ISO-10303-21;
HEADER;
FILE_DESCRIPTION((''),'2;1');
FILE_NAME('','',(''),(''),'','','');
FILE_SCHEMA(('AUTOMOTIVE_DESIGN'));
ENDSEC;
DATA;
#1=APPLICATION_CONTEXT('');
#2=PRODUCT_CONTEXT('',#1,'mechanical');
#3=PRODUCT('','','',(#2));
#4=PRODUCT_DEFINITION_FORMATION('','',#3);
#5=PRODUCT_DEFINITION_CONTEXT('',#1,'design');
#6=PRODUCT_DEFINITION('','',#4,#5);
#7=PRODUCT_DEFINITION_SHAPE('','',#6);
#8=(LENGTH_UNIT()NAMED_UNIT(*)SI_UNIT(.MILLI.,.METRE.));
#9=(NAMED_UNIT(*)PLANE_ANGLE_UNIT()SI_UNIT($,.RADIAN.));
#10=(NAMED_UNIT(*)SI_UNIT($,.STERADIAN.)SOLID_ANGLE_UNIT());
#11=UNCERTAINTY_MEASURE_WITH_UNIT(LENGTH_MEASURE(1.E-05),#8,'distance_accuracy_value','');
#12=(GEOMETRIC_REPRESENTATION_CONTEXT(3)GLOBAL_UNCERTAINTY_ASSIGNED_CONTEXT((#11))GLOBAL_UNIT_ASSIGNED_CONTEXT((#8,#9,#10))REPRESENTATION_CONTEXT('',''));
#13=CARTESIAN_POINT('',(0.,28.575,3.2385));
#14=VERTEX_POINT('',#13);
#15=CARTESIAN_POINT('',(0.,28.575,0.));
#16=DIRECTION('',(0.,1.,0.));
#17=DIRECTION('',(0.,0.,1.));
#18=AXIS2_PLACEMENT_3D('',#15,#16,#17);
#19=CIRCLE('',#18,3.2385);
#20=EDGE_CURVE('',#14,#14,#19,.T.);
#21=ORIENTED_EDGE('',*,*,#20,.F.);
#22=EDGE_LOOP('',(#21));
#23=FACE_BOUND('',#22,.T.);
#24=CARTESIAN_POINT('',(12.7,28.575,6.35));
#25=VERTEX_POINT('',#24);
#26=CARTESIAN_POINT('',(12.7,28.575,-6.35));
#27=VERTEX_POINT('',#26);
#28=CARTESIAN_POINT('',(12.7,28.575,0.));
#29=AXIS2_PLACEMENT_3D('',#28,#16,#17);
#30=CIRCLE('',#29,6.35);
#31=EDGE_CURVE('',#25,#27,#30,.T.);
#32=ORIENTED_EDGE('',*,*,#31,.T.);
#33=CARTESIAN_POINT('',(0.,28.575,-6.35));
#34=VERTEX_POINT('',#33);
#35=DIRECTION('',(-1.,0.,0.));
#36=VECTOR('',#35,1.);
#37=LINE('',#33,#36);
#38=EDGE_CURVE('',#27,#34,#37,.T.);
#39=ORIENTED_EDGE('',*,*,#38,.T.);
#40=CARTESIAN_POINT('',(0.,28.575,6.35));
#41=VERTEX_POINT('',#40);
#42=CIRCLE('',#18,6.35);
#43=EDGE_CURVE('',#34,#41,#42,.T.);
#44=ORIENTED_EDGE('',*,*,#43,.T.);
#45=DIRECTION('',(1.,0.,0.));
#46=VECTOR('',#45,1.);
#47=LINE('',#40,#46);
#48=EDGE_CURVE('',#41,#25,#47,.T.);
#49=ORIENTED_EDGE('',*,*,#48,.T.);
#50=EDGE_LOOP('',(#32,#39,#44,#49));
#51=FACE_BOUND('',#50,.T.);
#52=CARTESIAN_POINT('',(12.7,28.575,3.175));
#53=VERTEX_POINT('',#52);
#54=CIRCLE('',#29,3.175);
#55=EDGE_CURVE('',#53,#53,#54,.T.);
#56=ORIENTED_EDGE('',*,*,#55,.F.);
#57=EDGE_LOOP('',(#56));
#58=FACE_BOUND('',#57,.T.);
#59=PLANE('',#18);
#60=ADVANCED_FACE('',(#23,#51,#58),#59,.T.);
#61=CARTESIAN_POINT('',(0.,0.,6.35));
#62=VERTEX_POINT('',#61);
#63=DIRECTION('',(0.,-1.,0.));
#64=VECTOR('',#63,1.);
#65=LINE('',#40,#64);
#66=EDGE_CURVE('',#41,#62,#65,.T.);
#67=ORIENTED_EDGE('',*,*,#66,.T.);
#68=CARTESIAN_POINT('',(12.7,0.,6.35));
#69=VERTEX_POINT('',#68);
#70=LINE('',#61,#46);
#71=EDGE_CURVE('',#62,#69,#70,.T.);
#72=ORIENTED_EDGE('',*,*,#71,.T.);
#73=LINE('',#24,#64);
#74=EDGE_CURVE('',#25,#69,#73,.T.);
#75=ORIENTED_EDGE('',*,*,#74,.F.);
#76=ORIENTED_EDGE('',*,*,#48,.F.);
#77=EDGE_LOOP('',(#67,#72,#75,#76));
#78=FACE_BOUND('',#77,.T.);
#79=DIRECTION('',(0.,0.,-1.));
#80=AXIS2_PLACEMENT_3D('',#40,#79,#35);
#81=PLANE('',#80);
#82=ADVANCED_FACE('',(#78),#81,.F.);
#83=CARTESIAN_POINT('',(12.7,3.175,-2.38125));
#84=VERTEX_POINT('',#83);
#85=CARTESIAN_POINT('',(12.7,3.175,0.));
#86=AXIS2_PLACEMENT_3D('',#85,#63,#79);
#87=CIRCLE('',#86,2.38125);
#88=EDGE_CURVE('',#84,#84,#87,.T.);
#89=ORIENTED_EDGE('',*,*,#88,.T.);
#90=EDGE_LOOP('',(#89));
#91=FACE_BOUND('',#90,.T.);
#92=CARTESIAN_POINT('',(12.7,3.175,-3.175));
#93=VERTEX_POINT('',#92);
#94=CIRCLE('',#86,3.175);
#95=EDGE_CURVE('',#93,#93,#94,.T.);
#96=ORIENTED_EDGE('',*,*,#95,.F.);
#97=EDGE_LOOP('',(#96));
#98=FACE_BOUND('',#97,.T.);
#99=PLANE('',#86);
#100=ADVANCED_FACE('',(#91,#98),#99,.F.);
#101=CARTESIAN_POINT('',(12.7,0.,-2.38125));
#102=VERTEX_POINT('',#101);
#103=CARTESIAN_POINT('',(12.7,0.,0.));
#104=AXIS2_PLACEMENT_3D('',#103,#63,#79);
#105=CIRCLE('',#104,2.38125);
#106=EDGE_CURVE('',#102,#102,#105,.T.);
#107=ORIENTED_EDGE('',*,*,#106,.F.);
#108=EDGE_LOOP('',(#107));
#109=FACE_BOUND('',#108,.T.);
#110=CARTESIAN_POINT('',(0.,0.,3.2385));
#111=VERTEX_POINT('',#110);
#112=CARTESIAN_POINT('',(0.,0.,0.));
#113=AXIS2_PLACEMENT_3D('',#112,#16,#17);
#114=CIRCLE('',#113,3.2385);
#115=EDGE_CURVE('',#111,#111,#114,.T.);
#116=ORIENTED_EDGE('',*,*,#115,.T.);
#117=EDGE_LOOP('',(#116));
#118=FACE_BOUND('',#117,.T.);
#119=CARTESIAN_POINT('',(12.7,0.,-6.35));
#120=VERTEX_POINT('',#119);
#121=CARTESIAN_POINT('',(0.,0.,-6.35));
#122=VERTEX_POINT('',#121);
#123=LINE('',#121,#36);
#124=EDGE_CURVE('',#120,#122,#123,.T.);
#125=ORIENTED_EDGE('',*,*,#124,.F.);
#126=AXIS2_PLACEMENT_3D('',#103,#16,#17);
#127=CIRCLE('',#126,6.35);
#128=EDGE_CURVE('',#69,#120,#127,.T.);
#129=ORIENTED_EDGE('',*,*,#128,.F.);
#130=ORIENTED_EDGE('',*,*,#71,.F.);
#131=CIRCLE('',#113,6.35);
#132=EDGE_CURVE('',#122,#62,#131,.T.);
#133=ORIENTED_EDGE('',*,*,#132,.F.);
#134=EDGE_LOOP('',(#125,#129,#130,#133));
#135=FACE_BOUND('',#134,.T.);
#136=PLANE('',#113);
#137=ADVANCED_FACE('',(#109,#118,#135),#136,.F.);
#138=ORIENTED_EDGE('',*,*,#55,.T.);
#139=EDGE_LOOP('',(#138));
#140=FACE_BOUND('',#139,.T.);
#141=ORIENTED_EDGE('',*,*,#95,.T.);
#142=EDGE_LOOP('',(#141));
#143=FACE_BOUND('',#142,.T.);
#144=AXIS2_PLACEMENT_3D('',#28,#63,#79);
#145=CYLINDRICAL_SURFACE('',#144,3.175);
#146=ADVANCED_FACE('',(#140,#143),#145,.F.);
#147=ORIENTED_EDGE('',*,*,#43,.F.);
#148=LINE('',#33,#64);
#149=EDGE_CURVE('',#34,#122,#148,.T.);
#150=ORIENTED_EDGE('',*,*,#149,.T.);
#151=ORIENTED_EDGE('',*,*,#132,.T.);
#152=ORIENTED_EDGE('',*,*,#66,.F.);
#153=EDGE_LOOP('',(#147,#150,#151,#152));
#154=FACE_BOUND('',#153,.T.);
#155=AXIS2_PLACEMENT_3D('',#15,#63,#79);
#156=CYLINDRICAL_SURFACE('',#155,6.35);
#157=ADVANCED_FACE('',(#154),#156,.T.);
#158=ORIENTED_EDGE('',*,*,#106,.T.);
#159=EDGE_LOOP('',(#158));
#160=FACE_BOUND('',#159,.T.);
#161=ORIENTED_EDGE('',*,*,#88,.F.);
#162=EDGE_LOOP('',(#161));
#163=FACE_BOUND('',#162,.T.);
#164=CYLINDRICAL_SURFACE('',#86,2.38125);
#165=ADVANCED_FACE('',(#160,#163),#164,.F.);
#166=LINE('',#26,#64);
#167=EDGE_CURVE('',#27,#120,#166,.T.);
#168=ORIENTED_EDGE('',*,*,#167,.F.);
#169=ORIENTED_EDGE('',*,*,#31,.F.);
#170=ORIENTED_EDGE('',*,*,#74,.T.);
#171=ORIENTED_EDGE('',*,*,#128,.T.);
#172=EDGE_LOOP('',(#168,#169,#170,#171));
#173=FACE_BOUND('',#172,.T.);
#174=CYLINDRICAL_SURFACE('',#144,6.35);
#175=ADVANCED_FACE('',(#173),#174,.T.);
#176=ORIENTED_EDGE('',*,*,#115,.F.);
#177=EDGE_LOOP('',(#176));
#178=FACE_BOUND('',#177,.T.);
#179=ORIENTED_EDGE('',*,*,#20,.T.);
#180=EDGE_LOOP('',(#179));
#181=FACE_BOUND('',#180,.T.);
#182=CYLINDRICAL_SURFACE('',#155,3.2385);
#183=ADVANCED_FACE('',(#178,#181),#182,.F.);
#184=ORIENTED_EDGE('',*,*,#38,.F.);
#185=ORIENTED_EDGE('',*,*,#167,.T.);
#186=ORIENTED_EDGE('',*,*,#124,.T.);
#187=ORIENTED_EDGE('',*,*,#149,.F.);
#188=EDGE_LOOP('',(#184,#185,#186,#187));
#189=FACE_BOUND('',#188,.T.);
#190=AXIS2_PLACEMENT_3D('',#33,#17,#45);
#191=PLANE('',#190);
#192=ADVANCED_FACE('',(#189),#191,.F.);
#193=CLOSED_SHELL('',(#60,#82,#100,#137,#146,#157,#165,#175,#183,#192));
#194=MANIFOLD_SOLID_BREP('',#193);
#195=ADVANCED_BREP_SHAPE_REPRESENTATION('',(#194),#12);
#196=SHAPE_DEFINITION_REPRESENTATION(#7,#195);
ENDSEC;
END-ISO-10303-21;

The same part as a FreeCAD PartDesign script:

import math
import FreeCAD as App
import Part
import Sketcher
from FreeCAD import Vector
Q = App.Units.Quantity

doc = App.newDocument("Part")
body = doc.addObject("PartDesign::Body", "Body")

sketch1 = body.newObject("Sketcher::SketchObject", "Sketch")
sketch1.AttachmentSupport = (doc.getObject("XZ_Plane"), [""])
sketch1.MapMode = "FlatFace"
sketch1.addGeometry(Part.LineSegment(Vector(12.7, -6.3, 0), Vector(0, -6.3, 0)), False)
sketch1.addGeometry(Part.ArcOfCircle(Part.Circle(Vector(0, 0, 0), Vector(0, 0, 1), 6.3), math.radians(90), math.radians(270)), False)
sketch1.addGeometry(Part.LineSegment(Vector(0, 6.3, 0), Vector(12.7, 6.3, 0)), False)
sketch1.addGeometry(Part.ArcOfCircle(Part.Circle(Vector(12.7, 0, 0), Vector(0, 0, 1), 6.3), math.radians(-90), math.radians(90)), False)
sketch1.addGeometry(Part.Circle(Vector(12.7, 0, 0), Vector(0, 0, 1), 3.2), False)
sketch1.addGeometry(Part.Circle(Vector(0, 0, 0), Vector(0, 0, 1), 3.2), False)
sketch1.addConstraint(Sketcher.Constraint("Tangent", 0, 2, 1, 2))
sketch1.addConstraint(Sketcher.Constraint("Tangent", 1, 1, 2, 1))
sketch1.addConstraint(Sketcher.Constraint("Tangent", 2, 2, 3, 2))
sketch1.addConstraint(Sketcher.Constraint("Tangent", 3, 1, 0, 1))
sketch1.addConstraint(Sketcher.Constraint("Horizontal", 0))
sketch1.addConstraint(Sketcher.Constraint("Horizontal", 2))
sketch1.addConstraint(Sketcher.Constraint("Coincident", 1, 3, -1, 1))
sketch1.addConstraint(Sketcher.Constraint("Coincident", 5, 3, -1, 1))
sketch1.addConstraint(Sketcher.Constraint("Coincident", 4, 3, 3, 3))
sketch1.addConstraint(Sketcher.Constraint("Diameter", 4, Q("0.25 in")))
sketch1.addConstraint(Sketcher.Constraint("Radius", 1, Q("0.25 in")))
sketch1.addConstraint(Sketcher.Constraint("Diameter", 5, Q("0.255 in")))
sketch1.addConstraint(Sketcher.Constraint("DistanceX", 0, 2, 0, 1, Q("0.5 in")))
pad1 = body.newObject("PartDesign::Pad", "Pad")
pad1.Profile = sketch1
pad1.Length = Q("1.125 in")
pad1.Reversed = True

sketch2 = body.newObject("Sketcher::SketchObject", "Sketch001")
sketch2.AttachmentSupport = (doc.getObject("XZ_Plane"), [""])
sketch2.MapMode = "FlatFace"
sketch2.addGeometry(Part.Circle(Vector(12.7, 0, 0), Vector(0, 0, 1), 3.2), False)
sketch2.addGeometry(Part.Circle(Vector(12.7, 0, 0), Vector(0, 0, 1), 2.4), False)
sketch2.addConstraint(Sketcher.Constraint("Coincident", 1, 3, 0, 3))
sketch2.addConstraint(Sketcher.Constraint("PointOnObject", 0, 3, -1))
sketch2.addConstraint(Sketcher.Constraint("Diameter", 0, Q("0.25 in")))
sketch2.addConstraint(Sketcher.Constraint("Diameter", 1, Q("0.1875 in")))
sketch2.addConstraint(Sketcher.Constraint("DistanceX", -1, 1, 0, 3, Q("0.5 in")))
pad2 = body.newObject("PartDesign::Pad", "Pad001")
pad2.Profile = sketch2
pad2.Length = Q("0.125 in")
pad2.Reversed = True

doc.recompute()
